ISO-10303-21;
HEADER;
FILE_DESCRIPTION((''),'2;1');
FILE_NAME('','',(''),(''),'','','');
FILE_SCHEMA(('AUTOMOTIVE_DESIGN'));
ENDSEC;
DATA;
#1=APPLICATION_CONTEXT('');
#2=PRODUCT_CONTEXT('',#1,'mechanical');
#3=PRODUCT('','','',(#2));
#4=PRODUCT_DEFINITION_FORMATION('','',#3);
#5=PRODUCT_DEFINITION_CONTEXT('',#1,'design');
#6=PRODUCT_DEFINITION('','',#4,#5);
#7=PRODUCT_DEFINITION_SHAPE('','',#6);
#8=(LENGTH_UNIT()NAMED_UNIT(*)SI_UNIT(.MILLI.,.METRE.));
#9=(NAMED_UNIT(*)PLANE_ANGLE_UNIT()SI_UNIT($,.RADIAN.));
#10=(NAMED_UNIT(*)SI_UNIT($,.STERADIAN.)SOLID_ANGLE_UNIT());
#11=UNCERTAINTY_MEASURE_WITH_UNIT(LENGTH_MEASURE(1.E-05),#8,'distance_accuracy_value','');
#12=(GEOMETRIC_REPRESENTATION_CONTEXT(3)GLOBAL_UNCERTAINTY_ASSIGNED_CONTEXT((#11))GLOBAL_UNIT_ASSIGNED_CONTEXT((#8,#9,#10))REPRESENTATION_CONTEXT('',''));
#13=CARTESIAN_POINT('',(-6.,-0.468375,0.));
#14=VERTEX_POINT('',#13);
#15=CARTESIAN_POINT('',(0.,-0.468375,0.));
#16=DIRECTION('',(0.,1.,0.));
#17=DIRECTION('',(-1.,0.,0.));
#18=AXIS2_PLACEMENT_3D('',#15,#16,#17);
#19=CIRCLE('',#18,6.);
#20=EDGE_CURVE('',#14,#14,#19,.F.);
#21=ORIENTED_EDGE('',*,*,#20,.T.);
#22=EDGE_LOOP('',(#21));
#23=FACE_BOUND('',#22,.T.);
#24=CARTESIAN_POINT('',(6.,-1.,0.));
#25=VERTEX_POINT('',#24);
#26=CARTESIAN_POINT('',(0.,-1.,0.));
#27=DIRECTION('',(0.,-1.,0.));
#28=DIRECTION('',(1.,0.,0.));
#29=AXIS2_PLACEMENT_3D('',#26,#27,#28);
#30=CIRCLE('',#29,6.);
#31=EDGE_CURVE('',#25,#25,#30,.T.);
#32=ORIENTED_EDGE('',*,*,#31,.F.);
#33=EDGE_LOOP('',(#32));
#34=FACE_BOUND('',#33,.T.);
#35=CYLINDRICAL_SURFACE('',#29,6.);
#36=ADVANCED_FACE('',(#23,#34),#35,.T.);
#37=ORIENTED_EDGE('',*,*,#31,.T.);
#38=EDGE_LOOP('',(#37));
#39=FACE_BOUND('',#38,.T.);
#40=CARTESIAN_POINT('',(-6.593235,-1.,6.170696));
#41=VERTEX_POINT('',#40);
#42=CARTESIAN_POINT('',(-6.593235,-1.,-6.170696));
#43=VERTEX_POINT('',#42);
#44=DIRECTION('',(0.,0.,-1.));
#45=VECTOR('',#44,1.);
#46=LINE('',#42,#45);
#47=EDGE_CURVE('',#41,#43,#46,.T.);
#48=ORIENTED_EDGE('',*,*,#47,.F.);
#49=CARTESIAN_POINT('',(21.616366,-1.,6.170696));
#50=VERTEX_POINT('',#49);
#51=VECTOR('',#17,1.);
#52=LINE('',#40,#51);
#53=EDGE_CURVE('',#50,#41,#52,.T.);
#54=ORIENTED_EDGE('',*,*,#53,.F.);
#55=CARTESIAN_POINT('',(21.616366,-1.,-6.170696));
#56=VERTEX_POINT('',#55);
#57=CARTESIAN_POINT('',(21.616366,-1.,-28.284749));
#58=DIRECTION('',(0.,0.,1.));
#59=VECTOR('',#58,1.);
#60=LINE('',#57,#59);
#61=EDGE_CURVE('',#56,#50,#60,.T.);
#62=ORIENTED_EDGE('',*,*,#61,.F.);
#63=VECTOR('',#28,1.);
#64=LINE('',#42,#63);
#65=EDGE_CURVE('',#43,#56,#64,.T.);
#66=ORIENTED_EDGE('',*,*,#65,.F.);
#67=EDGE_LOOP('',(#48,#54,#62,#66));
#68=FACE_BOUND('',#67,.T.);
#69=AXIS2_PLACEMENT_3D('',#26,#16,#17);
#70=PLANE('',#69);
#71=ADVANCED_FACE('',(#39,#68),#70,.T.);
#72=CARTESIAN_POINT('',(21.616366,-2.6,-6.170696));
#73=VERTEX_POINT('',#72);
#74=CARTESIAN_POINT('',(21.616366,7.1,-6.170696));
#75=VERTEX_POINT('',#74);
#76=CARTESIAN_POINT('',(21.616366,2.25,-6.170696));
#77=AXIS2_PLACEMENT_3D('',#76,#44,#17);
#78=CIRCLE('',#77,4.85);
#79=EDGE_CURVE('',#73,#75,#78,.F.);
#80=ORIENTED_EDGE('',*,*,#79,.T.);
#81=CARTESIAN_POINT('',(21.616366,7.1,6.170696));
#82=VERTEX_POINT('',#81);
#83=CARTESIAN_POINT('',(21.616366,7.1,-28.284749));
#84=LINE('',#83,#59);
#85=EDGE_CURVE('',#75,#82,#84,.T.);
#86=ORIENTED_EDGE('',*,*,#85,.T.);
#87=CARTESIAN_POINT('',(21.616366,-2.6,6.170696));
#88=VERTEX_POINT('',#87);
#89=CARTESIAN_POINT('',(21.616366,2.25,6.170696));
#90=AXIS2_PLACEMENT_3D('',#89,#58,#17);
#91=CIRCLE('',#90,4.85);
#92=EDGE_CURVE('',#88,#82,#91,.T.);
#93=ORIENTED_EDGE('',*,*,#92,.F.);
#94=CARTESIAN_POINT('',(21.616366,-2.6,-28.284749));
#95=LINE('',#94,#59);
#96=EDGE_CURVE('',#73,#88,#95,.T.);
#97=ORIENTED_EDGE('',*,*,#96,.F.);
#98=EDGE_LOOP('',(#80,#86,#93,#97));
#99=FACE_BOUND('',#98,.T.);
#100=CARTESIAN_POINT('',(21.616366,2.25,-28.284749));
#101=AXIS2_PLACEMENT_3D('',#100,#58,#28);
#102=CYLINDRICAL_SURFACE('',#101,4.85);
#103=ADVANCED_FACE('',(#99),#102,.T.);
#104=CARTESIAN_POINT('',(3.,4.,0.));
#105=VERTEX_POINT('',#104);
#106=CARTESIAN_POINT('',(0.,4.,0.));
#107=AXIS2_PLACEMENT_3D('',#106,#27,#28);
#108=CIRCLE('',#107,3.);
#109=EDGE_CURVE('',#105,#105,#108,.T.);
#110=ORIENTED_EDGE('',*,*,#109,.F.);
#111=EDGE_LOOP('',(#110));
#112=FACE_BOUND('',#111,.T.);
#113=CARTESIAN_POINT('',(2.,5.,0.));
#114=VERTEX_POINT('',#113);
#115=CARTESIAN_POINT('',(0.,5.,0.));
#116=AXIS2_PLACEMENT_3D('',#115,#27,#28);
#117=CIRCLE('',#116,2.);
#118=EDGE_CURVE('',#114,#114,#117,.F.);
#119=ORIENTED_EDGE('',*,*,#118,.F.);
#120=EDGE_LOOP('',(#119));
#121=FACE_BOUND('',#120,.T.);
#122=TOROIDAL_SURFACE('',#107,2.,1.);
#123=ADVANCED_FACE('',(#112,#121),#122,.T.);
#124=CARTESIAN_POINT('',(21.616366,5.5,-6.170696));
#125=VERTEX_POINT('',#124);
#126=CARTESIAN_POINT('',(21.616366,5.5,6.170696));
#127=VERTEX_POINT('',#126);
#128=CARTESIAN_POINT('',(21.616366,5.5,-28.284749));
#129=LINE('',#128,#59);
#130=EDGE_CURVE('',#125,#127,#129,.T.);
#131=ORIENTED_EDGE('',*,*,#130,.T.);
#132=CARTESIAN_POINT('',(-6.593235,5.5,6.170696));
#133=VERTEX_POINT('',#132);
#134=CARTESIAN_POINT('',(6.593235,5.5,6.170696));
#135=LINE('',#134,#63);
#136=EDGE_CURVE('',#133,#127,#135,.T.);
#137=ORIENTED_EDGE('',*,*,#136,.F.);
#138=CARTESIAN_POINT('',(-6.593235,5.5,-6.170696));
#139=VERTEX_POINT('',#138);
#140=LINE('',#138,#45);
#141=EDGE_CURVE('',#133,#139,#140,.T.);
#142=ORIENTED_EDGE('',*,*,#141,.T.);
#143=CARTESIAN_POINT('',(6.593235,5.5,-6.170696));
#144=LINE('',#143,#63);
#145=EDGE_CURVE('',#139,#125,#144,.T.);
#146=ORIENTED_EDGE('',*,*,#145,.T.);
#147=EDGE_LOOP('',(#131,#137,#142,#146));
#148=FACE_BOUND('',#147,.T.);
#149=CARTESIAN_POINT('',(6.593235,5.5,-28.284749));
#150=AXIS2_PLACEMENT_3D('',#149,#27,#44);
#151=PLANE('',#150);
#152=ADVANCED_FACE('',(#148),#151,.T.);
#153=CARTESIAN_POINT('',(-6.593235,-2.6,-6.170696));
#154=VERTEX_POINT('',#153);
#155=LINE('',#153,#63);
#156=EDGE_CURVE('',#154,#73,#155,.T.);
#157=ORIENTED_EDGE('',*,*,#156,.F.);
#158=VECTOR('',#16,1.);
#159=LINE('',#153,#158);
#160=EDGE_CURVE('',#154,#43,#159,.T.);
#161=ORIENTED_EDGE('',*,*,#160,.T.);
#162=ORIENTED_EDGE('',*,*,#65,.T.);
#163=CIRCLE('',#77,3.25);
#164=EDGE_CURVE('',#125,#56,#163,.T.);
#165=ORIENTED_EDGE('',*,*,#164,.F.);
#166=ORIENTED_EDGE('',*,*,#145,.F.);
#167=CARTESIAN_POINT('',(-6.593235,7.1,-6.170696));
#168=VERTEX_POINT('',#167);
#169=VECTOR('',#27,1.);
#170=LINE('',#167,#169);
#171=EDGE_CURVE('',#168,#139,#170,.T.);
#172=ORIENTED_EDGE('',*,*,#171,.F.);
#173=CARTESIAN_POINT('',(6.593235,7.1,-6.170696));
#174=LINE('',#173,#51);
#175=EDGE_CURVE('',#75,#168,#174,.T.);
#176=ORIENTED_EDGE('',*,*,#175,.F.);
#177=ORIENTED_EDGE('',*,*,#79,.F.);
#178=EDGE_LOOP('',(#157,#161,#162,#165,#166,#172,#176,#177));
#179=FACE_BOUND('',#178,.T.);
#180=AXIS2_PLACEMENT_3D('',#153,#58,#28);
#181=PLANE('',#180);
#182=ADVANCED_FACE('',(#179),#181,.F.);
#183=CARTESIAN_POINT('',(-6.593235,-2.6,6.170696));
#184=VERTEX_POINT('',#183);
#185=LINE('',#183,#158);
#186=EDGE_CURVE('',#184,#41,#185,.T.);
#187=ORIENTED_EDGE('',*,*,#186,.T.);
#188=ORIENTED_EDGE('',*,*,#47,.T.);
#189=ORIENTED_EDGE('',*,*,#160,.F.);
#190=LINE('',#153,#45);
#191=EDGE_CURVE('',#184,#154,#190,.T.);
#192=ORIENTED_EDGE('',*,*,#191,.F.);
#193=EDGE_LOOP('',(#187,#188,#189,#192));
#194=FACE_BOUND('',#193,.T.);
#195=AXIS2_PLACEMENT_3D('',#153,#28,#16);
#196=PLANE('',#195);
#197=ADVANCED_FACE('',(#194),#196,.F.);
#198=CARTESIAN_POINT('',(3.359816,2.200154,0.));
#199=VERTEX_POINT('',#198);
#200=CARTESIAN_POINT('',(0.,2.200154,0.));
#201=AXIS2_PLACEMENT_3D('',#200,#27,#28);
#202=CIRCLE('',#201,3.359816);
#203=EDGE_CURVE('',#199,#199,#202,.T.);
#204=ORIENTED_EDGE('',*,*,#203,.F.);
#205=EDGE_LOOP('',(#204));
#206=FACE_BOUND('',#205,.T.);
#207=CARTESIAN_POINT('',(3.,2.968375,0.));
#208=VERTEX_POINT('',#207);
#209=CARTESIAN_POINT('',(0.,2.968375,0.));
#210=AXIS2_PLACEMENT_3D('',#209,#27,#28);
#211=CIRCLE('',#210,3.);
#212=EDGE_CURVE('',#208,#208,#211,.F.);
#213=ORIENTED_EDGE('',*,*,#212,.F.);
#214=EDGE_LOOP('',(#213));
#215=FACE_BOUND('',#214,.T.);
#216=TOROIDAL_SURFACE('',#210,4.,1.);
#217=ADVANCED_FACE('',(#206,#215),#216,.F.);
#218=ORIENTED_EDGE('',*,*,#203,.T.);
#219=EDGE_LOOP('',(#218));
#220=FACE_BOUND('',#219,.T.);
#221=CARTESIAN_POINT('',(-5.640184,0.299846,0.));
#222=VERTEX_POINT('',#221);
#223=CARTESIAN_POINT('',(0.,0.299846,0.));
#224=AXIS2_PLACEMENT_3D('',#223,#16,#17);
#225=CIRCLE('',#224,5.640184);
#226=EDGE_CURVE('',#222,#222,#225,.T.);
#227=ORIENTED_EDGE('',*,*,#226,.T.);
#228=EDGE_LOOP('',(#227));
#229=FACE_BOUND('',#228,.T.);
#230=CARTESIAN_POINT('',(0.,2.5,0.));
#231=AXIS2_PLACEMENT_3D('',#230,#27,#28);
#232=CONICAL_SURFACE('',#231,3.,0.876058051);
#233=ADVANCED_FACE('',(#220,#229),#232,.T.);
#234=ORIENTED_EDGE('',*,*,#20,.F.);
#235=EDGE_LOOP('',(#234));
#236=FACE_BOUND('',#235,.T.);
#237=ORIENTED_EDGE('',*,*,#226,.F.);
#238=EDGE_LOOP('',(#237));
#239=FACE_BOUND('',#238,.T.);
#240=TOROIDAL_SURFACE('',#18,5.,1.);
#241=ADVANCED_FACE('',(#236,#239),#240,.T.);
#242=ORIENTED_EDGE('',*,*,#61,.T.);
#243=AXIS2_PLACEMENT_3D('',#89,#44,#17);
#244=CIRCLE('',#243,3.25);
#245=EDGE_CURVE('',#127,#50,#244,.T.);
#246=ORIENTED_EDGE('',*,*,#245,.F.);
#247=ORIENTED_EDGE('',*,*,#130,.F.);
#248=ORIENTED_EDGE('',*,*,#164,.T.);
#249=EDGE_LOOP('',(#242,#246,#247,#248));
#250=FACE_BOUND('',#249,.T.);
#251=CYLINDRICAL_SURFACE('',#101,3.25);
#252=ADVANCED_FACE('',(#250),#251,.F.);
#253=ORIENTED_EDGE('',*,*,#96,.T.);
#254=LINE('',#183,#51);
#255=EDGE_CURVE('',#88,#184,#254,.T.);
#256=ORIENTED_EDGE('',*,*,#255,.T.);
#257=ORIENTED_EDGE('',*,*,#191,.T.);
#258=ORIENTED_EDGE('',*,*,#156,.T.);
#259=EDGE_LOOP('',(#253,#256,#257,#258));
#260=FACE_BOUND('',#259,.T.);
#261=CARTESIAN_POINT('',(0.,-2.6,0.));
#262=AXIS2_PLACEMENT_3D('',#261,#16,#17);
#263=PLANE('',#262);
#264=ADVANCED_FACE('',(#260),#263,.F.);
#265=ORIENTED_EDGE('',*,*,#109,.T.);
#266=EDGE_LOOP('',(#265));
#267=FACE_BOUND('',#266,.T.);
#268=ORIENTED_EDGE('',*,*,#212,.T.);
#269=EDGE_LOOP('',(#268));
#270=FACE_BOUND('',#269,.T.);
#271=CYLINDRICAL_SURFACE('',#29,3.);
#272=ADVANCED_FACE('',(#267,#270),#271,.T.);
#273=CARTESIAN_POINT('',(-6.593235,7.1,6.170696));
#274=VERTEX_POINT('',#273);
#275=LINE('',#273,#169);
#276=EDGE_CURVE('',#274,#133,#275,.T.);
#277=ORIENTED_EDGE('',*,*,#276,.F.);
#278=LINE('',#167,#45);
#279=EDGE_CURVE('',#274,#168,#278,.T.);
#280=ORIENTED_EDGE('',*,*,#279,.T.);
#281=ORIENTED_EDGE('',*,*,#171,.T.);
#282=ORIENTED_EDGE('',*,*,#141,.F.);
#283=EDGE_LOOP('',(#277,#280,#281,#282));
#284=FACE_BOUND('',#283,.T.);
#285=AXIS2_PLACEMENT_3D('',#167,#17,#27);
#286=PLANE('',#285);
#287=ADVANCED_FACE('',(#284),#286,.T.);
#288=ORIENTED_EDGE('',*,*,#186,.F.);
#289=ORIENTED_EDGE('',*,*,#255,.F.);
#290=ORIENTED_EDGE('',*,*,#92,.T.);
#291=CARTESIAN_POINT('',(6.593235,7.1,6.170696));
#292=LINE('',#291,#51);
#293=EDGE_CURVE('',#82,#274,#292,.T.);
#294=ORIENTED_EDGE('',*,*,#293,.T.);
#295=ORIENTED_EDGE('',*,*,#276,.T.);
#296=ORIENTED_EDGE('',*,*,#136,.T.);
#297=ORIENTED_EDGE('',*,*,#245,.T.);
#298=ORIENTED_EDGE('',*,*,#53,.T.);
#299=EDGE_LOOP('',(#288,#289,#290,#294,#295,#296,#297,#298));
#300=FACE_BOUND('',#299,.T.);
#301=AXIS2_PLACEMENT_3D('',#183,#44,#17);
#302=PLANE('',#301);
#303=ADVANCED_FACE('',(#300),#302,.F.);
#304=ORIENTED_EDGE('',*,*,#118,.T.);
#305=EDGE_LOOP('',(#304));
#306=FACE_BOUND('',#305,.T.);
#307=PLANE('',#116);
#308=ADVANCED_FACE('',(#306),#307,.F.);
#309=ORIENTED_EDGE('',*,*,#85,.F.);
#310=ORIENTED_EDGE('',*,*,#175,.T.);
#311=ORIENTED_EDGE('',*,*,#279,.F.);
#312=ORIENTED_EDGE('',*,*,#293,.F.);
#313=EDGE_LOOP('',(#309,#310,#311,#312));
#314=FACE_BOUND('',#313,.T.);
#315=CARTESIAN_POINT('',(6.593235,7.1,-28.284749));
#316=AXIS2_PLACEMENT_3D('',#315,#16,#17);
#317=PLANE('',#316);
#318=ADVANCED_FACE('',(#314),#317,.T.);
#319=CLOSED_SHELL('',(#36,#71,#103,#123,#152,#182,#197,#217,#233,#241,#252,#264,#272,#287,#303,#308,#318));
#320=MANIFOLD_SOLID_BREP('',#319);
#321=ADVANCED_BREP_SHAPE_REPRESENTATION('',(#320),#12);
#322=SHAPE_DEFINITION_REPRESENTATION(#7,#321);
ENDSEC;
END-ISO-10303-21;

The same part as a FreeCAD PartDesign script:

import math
import FreeCAD as App
import Part
import Sketcher


def edges_at(feature, points):
    """Names of the edges that pass closest to the given points."""
    edges = feature.Shape.Edges
    near = lambda p: min(range(len(edges)), key=lambda i: edges[i].distToShape(Part.Vertex(*p))[0])
    return sorted({f"Edge{near(p) + 1}" for p in points})

doc = App.newDocument("Part")
body = doc.addObject("PartDesign::Body", "Body")

sketch1 = body.newObject("Sketcher::SketchObject", "Sketch")
sketch1.AttachmentSupport = (doc.getObject("XY_Plane"), [""])
sketch1.MapMode = "FlatFace"
sketch1.addGeometry([
    Part.LineSegment(App.Vector(-3, 5, 0), App.Vector(-3, 2.5, 0)),
    Part.LineSegment(App.Vector(-3, 2.5, 0), App.Vector(-6, 0, 0)),
    Part.LineSegment(App.Vector(-6, 0, 0), App.Vector(-6, -1, 0)),
    Part.LineSegment(App.Vector(-6, -1, 0), App.Vector(0, -1, 0)),
    Part.LineSegment(App.Vector(0, -1, 0), App.Vector(0, 5, 0)),
    Part.LineSegment(App.Vector(0, 5, 0), App.Vector(-3, 5, 0)),
], False)
sketch1.addConstraint([
    Sketcher.Constraint("Coincident", 0, 2, 1, 1),
    Sketcher.Constraint("Coincident", 1, 2, 2, 1),
    Sketcher.Constraint("Coincident", 2, 2, 3, 1),
    Sketcher.Constraint("Coincident", 3, 2, 4, 1),
    Sketcher.Constraint("Coincident", 4, 2, 5, 1),
    Sketcher.Constraint("Coincident", 5, 2, 0, 1),
    Sketcher.Constraint("Vertical", 0),
    Sketcher.Constraint("Vertical", 2),
    Sketcher.Constraint("Horizontal", 3),
    Sketcher.Constraint("Vertical", 4),
    Sketcher.Constraint("Horizontal", 5),
    Sketcher.Constraint("PointOnObject", 1, 2, -1),
    Sketcher.Constraint("PointOnObject", 3, 2, -2),
    Sketcher.Constraint("Equal", 3, 4),
    Sketcher.Constraint("DistanceX", 3, 1, 3, 2, 6.0),
    Sketcher.Constraint("DistanceX", 5, 2, 5, 1, 3.0),
    Sketcher.Constraint("DistanceY", 2, 2, 2, 1, 1.0),
    Sketcher.Constraint("DistanceY", 0, 2, 0, 1, 2.5),
])
revolution = body.newObject("PartDesign::Revolution", "Revolution")
revolution.Profile = sketch1
revolution.ReferenceAxis = (sketch1, ["V_Axis"])
revolution.Angle = 360
doc.recompute()

fillet = body.newObject("PartDesign::Fillet", "Fillet")
fillet.Base = (revolution, edges_at(revolution, [(3, 5, 0), (6, 0, 0), (3, 2.5, 0)]))
fillet.Radius = 1

sketch2 = body.newObject("Sketcher::SketchObject", "Sketch001")
sketch2.AttachmentSupport = (doc.getObject("XZ_Plane"), [""])
sketch2.MapMode = "FlatFace"
sketch2.AttachmentOffset = App.Placement(App.Vector(0, 0, 1), App.Rotation())
sketch2.addGeometry([
    Part.LineSegment(App.Vector(-6.593235, 6.170696, 0), App.Vector(-6.593235, -6.170696, 0)),
    Part.LineSegment(App.Vector(-6.593235, -6.170696, 0), App.Vector(6.593235, -6.170696, 0)),
    Part.LineSegment(App.Vector(6.593235, -6.170696, 0), App.Vector(6.593235, 6.170696, 0)),
    Part.LineSegment(App.Vector(6.593235, 6.170696, 0), App.Vector(-6.593235, 6.170696, 0)),
], False)
sketch2.addConstraint([
    Sketcher.Constraint("Coincident", 0, 2, 1, 1),
    Sketcher.Constraint("Coincident", 1, 2, 2, 1),
    Sketcher.Constraint("Coincident", 2, 2, 3, 1),
    Sketcher.Constraint("Coincident", 3, 2, 0, 1),
    Sketcher.Constraint("Vertical", 0),
    Sketcher.Constraint("Horizontal", 1),
    Sketcher.Constraint("Vertical", 2),
    Sketcher.Constraint("Horizontal", 3),
    Sketcher.Constraint("Symmetric", 0, 2, 2, 2, -1, 1),
    Sketcher.Constraint("DistanceX", 1, 1, 1, 2, 13.18647),
    Sketcher.Constraint("DistanceY", 0, 2, 0, 1, 12.341392),
])
pad1 = body.newObject("PartDesign::Pad", "Pad")
pad1.Profile = sketch2
pad1.Length = 1.6
body2 = doc.addObject("PartDesign::Body", "Body001")

sketch3 = body2.newObject("Sketcher::SketchObject", "Sketch002")
sketch3.AttachmentSupport = (doc.getObject("XZ_Plane001"), [""])
sketch3.MapMode = "FlatFace"
sketch3.AttachmentOffset = App.Placement(App.Vector(0, 0, -5.5), App.Rotation())
sketch3.addGeometry([
    Part.LineSegment(App.Vector(-6.593235, 6.170696, 0), App.Vector(-6.593235, -6.170696, 0)),
    Part.LineSegment(App.Vector(-6.593235, -6.170696, 0), App.Vector(6.593235, -6.170696, 0)),
    Part.LineSegment(App.Vector(6.593235, -6.170696, 0), App.Vector(6.593235, 6.170696, 0)),
    Part.LineSegment(App.Vector(6.593235, 6.170696, 0), App.Vector(-6.593235, 6.170696, 0)),
], False)
sketch3.addConstraint([
    Sketcher.Constraint("Coincident", 0, 2, 1, 1),
    Sketcher.Constraint("Coincident", 1, 2, 2, 1),
    Sketcher.Constraint("Coincident", 2, 2, 3, 1),
    Sketcher.Constraint("Coincident", 3, 2, 0, 1),
    Sketcher.Constraint("Vertical", 0),
    Sketcher.Constraint("Horizontal", 1),
    Sketcher.Constraint("Vertical", 2),
    Sketcher.Constraint("Horizontal", 3),
    Sketcher.Constraint("Symmetric", 0, 2, 2, 2, -1, 1),
    Sketcher.Constraint("DistanceX", 1, 1, 1, 2, 13.18647),
    Sketcher.Constraint("DistanceY", 0, 2, 0, 1, 12.341392),
])
pad2 = body2.newObject("PartDesign::Pad", "Pad001")
pad2.Profile = sketch3
pad2.Length = 1.6
pad2.Reversed = True
body.AllowCompound = True
doc.recompute()

boolean = body.newObject("PartDesign::Boolean", "Boolean")
boolean.Type = "Fuse"
boolean.addObjects([body2])

sketch4 = body.newObject("Sketcher::SketchObject", "Sketch003")
sketch4.AttachmentSupport = (doc.getObject("XY_Plane"), [""])
sketch4.MapMode = "FlatFace"
sketch4.AttachmentOffset = App.Placement(App.Vector(0, 0, 6.170696), App.Rotation())
sketch4.addGeometry([
    Part.LineSegment(App.Vector(6.593235, 5.5, 0), App.Vector(21.616366, 5.5, 0)),
    Part.ArcOfCircle(Part.Circle(App.Vector(21.616366, 2.25, 0), App.Vector(0, 0, 1), 3.25), math.radians(-90), math.radians(90)),
    Part.LineSegment(App.Vector(21.616366, -1, 0), App.Vector(6.593235, -1, 0)),
    Part.LineSegment(App.Vector(6.593235, -1, 0), App.Vector(6.593235, -2.6, 0)),
    Part.LineSegment(App.Vector(6.593235, -2.6, 0), App.Vector(21.616366, -2.6, 0)),
    Part.ArcOfCircle(Part.Circle(App.Vector(21.616366, 2.25, 0), App.Vector(0, 0, 1), 4.85), math.radians(-90), math.radians(90)),
    Part.LineSegment(App.Vector(21.616366, 7.1, 0), App.Vector(6.593235, 7.1, 0)),
    Part.LineSegment(App.Vector(6.593235, 7.1, 0), App.Vector(6.593235, 5.5, 0)),
], False)
sketch4.addConstraint([
    Sketcher.Constraint("Tangent", 0, 2, 1, 2),
    Sketcher.Constraint("Tangent", 1, 1, 2, 1),
    Sketcher.Constraint("Coincident", 2, 2, 3, 1),
    Sketcher.Constraint("Coincident", 3, 2, 4, 1),
    Sketcher.Constraint("Tangent", 4, 2, 5, 1),
    Sketcher.Constraint("Tangent", 5, 2, 6, 1),
    Sketcher.Constraint("Coincident", 6, 2, 7, 1),
    Sketcher.Constraint("Coincident", 7, 2, 0, 1),
    Sketcher.Constraint("Horizontal", 0),
    Sketcher.Constraint("Horizontal", 2),
    Sketcher.Constraint("Vertical", 3),
    Sketcher.Constraint("Horizontal", 4),
    Sketcher.Constraint("Horizontal", 6),
    Sketcher.Constraint("Vertical", 7),
    Sketcher.Constraint("Coincident", 5, 3, 1, 3),
    Sketcher.Constraint("Vertical", 3, 2, 6, 2),
    Sketcher.Constraint("Radius", 1, 3.25),
    Sketcher.Constraint("Radius", 5, 4.85),
    Sketcher.Constraint("DistanceY", 1, 1, -1, 1, 1.0),
    Sketcher.Constraint("DistanceX", 0, 1, 0, 2, 15.023131),
    Sketcher.Constraint("DistanceX", -1, 1, 1, 3, 21.616366),
])
pad3 = body.newObject("PartDesign::Pad", "Pad002")
pad3.Profile = sketch4
pad3.Length = 12.341392
pad3.Reversed = True

doc.recompute()
